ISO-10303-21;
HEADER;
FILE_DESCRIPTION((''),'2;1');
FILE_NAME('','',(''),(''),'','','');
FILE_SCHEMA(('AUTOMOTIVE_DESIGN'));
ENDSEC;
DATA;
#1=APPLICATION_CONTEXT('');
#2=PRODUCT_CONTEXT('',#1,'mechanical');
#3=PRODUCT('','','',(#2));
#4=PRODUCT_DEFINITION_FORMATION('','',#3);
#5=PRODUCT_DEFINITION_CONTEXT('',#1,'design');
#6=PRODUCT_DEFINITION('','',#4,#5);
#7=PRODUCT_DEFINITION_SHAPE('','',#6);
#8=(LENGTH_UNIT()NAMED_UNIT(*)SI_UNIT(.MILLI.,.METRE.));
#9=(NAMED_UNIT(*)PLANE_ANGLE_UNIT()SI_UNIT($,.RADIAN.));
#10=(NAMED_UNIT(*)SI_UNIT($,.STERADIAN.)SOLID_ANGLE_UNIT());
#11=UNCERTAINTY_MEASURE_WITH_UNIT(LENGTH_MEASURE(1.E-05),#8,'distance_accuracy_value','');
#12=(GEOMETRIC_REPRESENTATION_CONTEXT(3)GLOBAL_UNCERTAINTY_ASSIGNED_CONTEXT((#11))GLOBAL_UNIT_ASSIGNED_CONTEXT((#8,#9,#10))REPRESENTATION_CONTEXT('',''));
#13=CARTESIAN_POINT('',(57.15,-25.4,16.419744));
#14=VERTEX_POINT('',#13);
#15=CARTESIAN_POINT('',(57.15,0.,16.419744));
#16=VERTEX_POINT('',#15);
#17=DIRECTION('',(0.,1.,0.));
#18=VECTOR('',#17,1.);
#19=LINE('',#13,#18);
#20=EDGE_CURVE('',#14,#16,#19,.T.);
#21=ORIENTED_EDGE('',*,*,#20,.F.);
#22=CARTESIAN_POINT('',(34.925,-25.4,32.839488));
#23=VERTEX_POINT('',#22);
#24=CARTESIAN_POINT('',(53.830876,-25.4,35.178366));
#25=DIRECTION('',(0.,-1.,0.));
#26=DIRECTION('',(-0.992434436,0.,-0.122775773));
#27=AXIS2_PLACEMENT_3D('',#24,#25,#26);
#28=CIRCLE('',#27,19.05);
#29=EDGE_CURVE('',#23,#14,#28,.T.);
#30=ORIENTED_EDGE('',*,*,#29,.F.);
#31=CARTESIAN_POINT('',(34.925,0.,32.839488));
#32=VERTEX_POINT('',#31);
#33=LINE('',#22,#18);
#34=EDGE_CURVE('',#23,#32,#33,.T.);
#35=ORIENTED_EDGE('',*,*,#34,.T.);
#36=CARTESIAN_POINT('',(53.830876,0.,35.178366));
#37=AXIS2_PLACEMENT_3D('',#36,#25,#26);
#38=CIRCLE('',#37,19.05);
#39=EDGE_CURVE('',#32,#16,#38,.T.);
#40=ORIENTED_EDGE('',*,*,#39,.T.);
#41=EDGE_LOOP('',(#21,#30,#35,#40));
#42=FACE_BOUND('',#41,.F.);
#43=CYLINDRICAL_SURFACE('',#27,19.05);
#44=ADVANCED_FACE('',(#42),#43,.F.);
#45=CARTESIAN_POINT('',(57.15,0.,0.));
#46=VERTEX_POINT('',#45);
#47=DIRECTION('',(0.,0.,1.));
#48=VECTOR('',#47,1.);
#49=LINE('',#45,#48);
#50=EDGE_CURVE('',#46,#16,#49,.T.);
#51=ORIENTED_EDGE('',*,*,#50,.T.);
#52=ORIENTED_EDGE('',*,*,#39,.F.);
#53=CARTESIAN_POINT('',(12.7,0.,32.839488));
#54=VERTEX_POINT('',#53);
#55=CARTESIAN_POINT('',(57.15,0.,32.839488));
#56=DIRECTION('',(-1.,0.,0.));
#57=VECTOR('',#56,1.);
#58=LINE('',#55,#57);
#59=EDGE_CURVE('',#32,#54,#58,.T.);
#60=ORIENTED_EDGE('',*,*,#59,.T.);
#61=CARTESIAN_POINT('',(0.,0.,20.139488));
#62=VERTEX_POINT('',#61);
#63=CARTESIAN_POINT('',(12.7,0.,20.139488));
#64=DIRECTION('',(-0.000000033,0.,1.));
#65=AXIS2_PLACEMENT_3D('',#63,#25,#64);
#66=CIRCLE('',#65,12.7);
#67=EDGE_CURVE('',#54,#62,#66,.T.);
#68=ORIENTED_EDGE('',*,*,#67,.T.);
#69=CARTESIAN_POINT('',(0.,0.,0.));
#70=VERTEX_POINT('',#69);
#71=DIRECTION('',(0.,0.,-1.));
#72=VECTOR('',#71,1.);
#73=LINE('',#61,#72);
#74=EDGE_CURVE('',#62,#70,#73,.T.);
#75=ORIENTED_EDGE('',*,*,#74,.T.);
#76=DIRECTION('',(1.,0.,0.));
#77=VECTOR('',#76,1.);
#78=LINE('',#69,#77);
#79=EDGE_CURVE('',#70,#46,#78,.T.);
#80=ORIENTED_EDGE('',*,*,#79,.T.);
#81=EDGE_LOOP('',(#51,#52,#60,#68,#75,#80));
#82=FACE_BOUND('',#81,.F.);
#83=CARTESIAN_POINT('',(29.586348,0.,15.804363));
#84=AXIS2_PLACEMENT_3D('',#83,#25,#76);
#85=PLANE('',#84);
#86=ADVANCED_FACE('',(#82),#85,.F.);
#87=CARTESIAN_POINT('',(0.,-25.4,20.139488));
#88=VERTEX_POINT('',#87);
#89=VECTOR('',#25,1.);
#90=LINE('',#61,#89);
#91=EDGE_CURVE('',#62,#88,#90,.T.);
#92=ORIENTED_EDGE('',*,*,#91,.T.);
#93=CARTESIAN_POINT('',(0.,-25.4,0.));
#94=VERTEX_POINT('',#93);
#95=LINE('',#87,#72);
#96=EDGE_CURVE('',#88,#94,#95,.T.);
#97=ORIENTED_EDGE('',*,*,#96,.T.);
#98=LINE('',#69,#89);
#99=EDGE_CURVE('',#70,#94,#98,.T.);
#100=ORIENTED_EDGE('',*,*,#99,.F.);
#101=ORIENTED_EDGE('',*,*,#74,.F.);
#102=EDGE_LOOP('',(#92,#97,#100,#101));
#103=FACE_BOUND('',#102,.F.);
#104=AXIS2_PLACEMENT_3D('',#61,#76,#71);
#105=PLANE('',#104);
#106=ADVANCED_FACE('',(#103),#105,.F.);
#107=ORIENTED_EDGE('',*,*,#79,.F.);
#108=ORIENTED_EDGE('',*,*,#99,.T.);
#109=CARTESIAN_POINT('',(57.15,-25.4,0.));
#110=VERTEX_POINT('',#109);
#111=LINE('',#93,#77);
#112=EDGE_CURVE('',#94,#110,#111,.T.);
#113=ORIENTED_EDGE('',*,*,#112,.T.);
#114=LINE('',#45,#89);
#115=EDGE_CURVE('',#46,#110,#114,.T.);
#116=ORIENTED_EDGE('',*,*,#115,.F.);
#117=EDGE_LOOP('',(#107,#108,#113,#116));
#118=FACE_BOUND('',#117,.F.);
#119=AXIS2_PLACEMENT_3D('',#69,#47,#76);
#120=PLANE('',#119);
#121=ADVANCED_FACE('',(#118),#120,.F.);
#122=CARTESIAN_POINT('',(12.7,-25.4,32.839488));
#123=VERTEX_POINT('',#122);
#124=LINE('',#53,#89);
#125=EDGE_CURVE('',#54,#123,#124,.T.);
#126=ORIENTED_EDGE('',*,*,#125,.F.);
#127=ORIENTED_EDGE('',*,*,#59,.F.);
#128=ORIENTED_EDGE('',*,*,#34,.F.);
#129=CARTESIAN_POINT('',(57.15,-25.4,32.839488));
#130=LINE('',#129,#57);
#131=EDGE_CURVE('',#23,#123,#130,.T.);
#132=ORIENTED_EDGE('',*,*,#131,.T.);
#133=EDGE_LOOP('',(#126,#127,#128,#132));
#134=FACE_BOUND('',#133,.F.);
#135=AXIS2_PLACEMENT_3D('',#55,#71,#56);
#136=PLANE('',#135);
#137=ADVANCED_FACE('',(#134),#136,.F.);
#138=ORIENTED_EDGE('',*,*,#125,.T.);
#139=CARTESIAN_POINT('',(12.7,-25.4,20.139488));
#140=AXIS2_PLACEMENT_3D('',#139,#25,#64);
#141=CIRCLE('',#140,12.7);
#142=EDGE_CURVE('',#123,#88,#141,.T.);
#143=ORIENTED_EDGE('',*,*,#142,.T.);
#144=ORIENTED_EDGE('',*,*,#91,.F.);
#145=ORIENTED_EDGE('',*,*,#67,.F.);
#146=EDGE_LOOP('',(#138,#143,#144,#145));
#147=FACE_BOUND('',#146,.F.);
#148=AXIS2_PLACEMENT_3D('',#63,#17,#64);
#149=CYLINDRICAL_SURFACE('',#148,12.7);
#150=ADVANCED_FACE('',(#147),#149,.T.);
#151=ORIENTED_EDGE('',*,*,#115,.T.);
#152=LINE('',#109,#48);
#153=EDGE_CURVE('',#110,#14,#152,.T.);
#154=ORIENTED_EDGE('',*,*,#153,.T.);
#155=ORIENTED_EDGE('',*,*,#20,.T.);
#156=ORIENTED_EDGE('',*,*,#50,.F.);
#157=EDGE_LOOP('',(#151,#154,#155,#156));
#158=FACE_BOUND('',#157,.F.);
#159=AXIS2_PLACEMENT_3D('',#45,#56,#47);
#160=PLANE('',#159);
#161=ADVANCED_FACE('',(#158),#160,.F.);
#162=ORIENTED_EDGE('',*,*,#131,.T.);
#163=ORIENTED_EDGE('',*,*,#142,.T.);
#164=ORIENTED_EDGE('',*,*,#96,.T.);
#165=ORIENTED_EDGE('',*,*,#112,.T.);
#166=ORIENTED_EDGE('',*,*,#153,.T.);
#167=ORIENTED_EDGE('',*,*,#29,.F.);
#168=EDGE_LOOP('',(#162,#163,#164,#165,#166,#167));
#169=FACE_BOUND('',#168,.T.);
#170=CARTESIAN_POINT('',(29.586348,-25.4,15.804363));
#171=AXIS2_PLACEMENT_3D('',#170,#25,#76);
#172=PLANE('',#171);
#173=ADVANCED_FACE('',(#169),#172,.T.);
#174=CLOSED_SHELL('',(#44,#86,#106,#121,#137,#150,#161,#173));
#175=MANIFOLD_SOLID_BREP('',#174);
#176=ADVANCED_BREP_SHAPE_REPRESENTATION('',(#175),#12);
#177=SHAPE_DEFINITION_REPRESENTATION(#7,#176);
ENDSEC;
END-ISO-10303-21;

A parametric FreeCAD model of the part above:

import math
import FreeCAD as App
import Part
import Sketcher
from FreeCAD import Vector
Q = App.Units.Quantity

doc = App.newDocument("Part")
params = doc.addObject("Spreadsheet::Sheet", "Params")
for row, (alias, value) in enumerate([
    ("sketch1_radius", "0.5 in"),
    ("sketch1_width", "2.25 in"),
    ("pad1_length", "1 in"),
    ("sketch2_radius", "0.75 in"),
    ("sketch2_width", "0.875 in"),
    ("pocket1_length", "1 in"),
], start=1):
    params.set(f"A{row}", alias)
    params.set(f"B{row}", "=" + value)
    params.setAlias(f"B{row}", alias)

body = doc.addObject("PartDesign::Body", "Body")

# Sketch on XZ plane
sketch1 = body.newObject("Sketcher::SketchObject", "Sketch")
sketch1.AttachmentSupport = (doc.getObject("XZ_Plane"), [""])
sketch1.MapMode = "FlatFace"
sketch1.addGeometry(Part.LineSegment(Vector(0, 20, 0), Vector(0, 0, 0)), False)
sketch1.addGeometry(Part.LineSegment(Vector(0, 0, 0), Vector(57, 0, 0)), False)
sketch1.addGeometry(Part.LineSegment(Vector(57, 0, 0), Vector(57, 33, 0)), False)
sketch1.addGeometry(Part.LineSegment(Vector(57, 33, 0), Vector(13, 33, 0)), False)
sketch1.addGeometry(Part.ArcOfCircle(Part.Circle(Vector(13, 20, 0), Vector(0, 0, 1), 13), math.radians(90), math.radians(180)), False)
sketch1.addConstraint(Sketcher.Constraint("Coincident", 0, 2, 1, 1))
sketch1.addConstraint(Sketcher.Constraint("Coincident", 1, 2, 2, 1))
sketch1.addConstraint(Sketcher.Constraint("Coincident", 2, 2, 3, 1))
sketch1.addConstraint(Sketcher.Constraint("Tangent", 3, 2, 4, 1))
sketch1.addConstraint(Sketcher.Constraint("Tangent", 4, 2, 0, 1))
sketch1.addConstraint(Sketcher.Constraint("Vertical", 0))
sketch1.addConstraint(Sketcher.Constraint("Horizontal", 1))
sketch1.addConstraint(Sketcher.Constraint("Vertical", 2))
sketch1.addConstraint(Sketcher.Constraint("Horizontal", 3))
sketch1.addConstraint(Sketcher.Constraint("Coincident", 0, 2, -1, 1))
sketch1.addConstraint(Sketcher.Constraint("Radius", 4, Q("0.5 in")))
sketch1.addConstraint(Sketcher.Constraint("DistanceX", 1, 1, 1, 2, Q("2.25 in")))
sketch1.addConstraint(Sketcher.Constraint("DistanceY", 0, 2, 0, 1, 20.139488))
sketch1.setExpression("Constraints[10]", "Params.sketch1_radius")
sketch1.setExpression("Constraints[11]", "Params.sketch1_width")
pad1 = body.newObject("PartDesign::Pad", "Pad")
pad1.Profile = sketch1
pad1.setExpression("Length", "Params.pad1_length")

# Sketch on XZ plane
sketch2 = body.newObject("Sketcher::SketchObject", "Sketch001")
sketch2.AttachmentSupport = (doc.getObject("XZ_Plane"), [""])
sketch2.MapMode = "FlatFace"
sketch2.AttachmentOffset = App.Placement(Vector(0, 0, 1 * 25.4), App.Rotation())
sketch2.addGeometry(Part.LineSegment(Vector(57, 33, 0), Vector(35, 33, 0)), False)
sketch2.addGeometry(Part.ArcOfCircle(Part.Circle(Vector(54, 35, 0), Vector(0, 0, 1), 19), math.radians(-173), math.radians(-80)), False)
sketch2.addGeometry(Part.LineSegment(Vector(57, 16, 0), Vector(57, 33, 0)), False)
sketch2.addConstraint(Sketcher.Constraint("Coincident", 0, 2, 1, 1))
sketch2.addConstraint(Sketcher.Constraint("Coincident", 1, 2, 2, 1))
sketch2.addConstraint(Sketcher.Constraint("Coincident", 2, 2, 0, 1))
sketch2.addConstraint(Sketcher.Constraint("Horizontal", 0))
sketch2.addConstraint(Sketcher.Constraint("Vertical", 2))
sketch2.addConstraint(Sketcher.Constraint("Radius", 1, Q("0.75 in")))
sketch2.addConstraint(Sketcher.Constraint("DistanceX", 0, 2, 0, 1, Q("0.875 in")))
sketch2.addConstraint(Sketcher.Constraint("DistanceX", -1, 1, 1, 2, Q("2.25 in")))
sketch2.addConstraint(Sketcher.Constraint("DistanceY", 2, 1, 2, 2, 16.419744))
sketch2.addConstraint(Sketcher.Constraint("DistanceY", -1, 1, 0, 2, 32.839488))
sketch2.setExpression("Constraints[5]", "Params.sketch2_radius")
sketch2.setExpression("Constraints[6]", "Params.sketch2_width")
pocket1 = body.newObject("PartDesign::Pocket", "Pocket")
pocket1.Profile = sketch2
pocket1.setExpression("Length", "Params.pocket1_length")

doc.recompute()
